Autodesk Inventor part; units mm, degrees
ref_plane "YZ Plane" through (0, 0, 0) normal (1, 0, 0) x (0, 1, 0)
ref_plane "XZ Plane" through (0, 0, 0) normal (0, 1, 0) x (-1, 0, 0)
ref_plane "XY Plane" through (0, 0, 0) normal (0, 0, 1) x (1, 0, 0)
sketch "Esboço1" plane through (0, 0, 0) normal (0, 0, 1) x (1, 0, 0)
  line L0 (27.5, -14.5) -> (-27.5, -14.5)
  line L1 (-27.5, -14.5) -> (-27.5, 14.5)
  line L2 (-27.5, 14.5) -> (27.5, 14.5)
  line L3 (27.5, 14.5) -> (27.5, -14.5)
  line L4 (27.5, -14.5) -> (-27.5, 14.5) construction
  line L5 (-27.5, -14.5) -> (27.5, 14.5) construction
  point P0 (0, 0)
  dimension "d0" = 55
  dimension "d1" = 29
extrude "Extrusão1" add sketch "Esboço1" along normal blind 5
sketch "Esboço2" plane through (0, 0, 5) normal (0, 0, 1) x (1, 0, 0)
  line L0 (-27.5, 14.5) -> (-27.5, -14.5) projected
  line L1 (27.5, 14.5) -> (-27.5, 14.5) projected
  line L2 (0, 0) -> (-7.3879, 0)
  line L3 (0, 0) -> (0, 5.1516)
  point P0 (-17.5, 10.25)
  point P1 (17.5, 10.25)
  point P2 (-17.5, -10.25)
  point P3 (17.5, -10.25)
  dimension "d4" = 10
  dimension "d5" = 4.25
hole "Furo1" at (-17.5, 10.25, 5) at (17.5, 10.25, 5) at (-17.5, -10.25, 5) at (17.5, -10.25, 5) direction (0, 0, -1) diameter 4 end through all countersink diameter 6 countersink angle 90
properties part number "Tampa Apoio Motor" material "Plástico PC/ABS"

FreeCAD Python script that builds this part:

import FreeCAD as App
import Part
import Sketcher

V = App.Vector

doc = App.newDocument("Part")
body = doc.addObject("PartDesign::Body", "Body")

# Sketch on XY plane
sketch1 = body.newObject("Sketcher::SketchObject", "Sketch")
sketch1.AttachmentSupport = (doc.getObject("XY_Plane"), [""])
sketch1.MapMode = "FlatFace"
sketch1.addGeometry(Part.LineSegment(V(-28, -14, 0), V(28, -14, 0)), False)
sketch1.addGeometry(Part.LineSegment(V(28, -14, 0), V(28, 14, 0)), False)
sketch1.addGeometry(Part.LineSegment(V(28, 14, 0), V(-28, 14, 0)), False)
sketch1.addGeometry(Part.LineSegment(V(-28, 14, 0), V(-28, -14, 0)), False)
sketch1.addConstraint(Sketcher.Constraint("Coincident", 0, 2, 1, 1))
sketch1.addConstraint(Sketcher.Constraint("Coincident", 1, 2, 2, 1))
sketch1.addConstraint(Sketcher.Constraint("Coincident", 2, 2, 3, 1))
sketch1.addConstraint(Sketcher.Constraint("Coincident", 3, 2, 0, 1))
sketch1.addConstraint(Sketcher.Constraint("Horizontal", 0))
sketch1.addConstraint(Sketcher.Constraint("Vertical", 1))
sketch1.addConstraint(Sketcher.Constraint("Horizontal", 2))
sketch1.addConstraint(Sketcher.Constraint("Vertical", 3))
sketch1.addConstraint(Sketcher.Constraint("Symmetric", 0, 2, 2, 2, -1, 1))
sketch1.addConstraint(Sketcher.Constraint("DistanceX", 0, 1, 0, 2, 55.0))
sketch1.addConstraint(Sketcher.Constraint("DistanceY", 1, 1, 1, 2, 29.0))
pad1 = body.newObject("PartDesign::Pad", "Pad")
pad1.Profile = sketch1
pad1.Length = 5

# Sketch on XY plane
sketch2 = body.newObject("Sketcher::SketchObject", "Sketch001")
sketch2.AttachmentSupport = (doc.getObject("XY_Plane"), [""])
sketch2.MapMode = "FlatFace"
sketch2.AttachmentOffset = App.Placement(V(0, 0, 5), App.Rotation())
sketch2.addGeometry(Part.Circle(V(-17.5, 10.2, 0), V(0, 0, 1), 2), False)
sketch2.addGeometry(Part.Circle(V(17.5, 10.2, 0), V(0, 0, 1), 2), False)
sketch2.addGeometry(Part.Circle(V(-17.5, -10.2, 0), V(0, 0, 1), 2), False)
sketch2.addGeometry(Part.Circle(V(17.5, -10.2, 0), V(0, 0, 1), 2), False)
sketch2.addConstraint(Sketcher.Constraint("Equal", 0, 1))
sketch2.addConstraint(Sketcher.Constraint("Equal", 1, 2))
sketch2.addConstraint(Sketcher.Constraint("Equal", 2, 3))
sketch2.addConstraint(Sketcher.Constraint("Symmetric", 1, 3, 2, 3, -1, 1))
sketch2.addConstraint(Sketcher.Constraint("Symmetric", 0, 3, 3, 3, -1, 1))
sketch2.addConstraint(Sketcher.Constraint("Symmetric", 0, 3, 1, 3, -2))
sketch2.addConstraint(Sketcher.Constraint("Diameter", 0, 4.0))
sketch2.addConstraint(Sketcher.Constraint("DistanceX", 0, 3, 1, 3, 35.0))
sketch2.addConstraint(Sketcher.Constraint("DistanceY", 2, 3, 0, 3, 20.5))
doc.recompute()
hole = body.newObject("PartDesign::Hole", "Hole")
hole.Profile = sketch2
hole.ThreadType = "None"
hole.Diameter = 4
hole.DepthType = "ThroughAll"
hole.HoleCutType = "Countersink"
hole.HoleCutDiameter = 6
hole.HoleCutCountersinkAngle = 90

doc.recompute()
